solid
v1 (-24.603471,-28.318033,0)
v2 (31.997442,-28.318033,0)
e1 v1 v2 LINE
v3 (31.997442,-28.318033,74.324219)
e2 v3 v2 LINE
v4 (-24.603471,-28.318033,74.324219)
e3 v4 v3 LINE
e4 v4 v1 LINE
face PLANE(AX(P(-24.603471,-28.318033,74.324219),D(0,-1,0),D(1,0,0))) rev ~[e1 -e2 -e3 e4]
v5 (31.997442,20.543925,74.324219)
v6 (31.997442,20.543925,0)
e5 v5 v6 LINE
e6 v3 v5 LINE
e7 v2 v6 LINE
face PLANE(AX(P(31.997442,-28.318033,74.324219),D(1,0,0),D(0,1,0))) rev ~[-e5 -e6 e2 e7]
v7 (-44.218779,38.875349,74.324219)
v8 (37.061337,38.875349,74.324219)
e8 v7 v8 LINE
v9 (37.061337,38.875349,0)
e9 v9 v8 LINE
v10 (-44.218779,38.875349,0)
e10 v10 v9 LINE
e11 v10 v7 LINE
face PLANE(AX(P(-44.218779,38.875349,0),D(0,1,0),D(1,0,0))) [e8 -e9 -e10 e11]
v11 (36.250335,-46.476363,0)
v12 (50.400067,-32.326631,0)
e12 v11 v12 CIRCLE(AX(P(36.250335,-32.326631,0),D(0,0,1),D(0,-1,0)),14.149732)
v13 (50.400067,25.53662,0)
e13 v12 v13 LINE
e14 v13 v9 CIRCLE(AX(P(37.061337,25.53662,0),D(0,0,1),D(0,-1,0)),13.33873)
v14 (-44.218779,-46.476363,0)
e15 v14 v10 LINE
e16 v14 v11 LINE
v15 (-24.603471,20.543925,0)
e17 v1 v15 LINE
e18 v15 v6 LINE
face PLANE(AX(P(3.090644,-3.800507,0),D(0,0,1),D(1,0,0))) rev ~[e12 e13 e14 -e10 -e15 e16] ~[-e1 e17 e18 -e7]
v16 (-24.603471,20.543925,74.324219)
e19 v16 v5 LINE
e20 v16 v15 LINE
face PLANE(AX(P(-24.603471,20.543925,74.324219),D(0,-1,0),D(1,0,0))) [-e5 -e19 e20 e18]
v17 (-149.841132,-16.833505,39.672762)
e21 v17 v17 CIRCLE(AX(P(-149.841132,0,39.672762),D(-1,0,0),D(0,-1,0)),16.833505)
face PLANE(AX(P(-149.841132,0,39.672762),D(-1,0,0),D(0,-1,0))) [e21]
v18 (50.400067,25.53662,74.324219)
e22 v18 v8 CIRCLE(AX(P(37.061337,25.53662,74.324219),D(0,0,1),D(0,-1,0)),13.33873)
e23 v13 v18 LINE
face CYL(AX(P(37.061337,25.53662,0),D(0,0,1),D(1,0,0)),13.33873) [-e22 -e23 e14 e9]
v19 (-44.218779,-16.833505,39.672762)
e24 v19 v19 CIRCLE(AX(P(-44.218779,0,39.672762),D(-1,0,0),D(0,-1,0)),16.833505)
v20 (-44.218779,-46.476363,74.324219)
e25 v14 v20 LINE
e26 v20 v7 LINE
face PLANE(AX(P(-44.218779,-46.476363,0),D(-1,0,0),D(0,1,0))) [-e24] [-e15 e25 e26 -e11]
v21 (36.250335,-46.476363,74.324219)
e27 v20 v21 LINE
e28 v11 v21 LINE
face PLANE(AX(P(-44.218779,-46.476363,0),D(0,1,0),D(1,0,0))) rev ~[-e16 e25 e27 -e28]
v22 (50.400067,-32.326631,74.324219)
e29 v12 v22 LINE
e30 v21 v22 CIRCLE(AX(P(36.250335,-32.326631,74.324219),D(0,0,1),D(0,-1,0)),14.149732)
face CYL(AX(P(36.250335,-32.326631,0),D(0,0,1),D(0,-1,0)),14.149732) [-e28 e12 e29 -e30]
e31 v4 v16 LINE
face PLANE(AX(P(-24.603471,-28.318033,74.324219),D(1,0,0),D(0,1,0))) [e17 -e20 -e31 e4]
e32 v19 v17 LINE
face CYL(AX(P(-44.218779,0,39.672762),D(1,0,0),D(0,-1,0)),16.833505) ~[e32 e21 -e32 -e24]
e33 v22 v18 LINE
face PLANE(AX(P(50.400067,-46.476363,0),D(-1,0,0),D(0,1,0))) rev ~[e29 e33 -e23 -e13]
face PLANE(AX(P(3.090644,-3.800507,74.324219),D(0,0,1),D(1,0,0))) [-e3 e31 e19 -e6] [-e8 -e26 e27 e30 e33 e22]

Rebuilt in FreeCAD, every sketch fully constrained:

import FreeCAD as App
import Part
import Sketcher


def edges_at(feature, points):
    """Names of the edges that pass closest to the given points."""
    edges = feature.Shape.Edges
    near = lambda p: min(range(len(edges)), key=lambda i: edges[i].distToShape(Part.Vertex(*p))[0])
    return sorted({f"Edge{near(p) + 1}" for p in points})


def add_polygon(sketch, points):
    """Adds a closed chain of lines whose ends are joined by coincident constraints."""
    first, n = sketch.GeometryCount, len(points)
    for a, b in zip(points, points[1:] + points[:1]):
        sketch.addGeometry(Part.LineSegment(App.Vector(*a, 0), App.Vector(*b, 0)), False)
    for i in range(n):
        sketch.addConstraint(Sketcher.Constraint("Coincident", first + i, 2, first + (i + 1) % n, 1))

doc = App.newDocument("Part")
params = doc.addObject("Spreadsheet::Sheet", "Params")
for row, (alias, value) in enumerate([
    ("pad1_length", "74.324219 mm"),
    ("pocket1_length", "132.836582 mm"),
    ("pad2_length", "105.622353 mm"),
    ("fillet_radius", "14.149732 mm"),
    ("fillet2_radius", "13.33873 mm"),
], start=1):
    params.set(f"A{row}", alias)
    params.set(f"B{row}", "=" + value)
    params.setAlias(f"B{row}", alias)

body = doc.addObject("PartDesign::Body", "Body")

# Sketch on XY plane
sketch1 = doc.addObject("Sketcher::SketchObject", "Sketch")
body.addObject(sketch1)
sketch1.AttachmentSupport = (doc.XY_Plane, [""])
sketch1.MapMode = "FlatFace"
add_polygon(sketch1, [(-44.218779, 38.875349), (-44.218779, -46.476363), (50.400067, -46.476363), (50.400067, 38.875349)])  # lines 0-3
sketch1.addConstraint([
    Sketcher.Constraint("Vertical", 0),
    Sketcher.Constraint("Horizontal", 1),
    Sketcher.Constraint("Vertical", 2),
    Sketcher.Constraint("Horizontal", 3),
    Sketcher.Constraint("DistanceX", 1, 1, 1, 2, 94.618846),
    Sketcher.Constraint("DistanceY", 0, 2, 0, 1, 85.351713),
    Sketcher.Constraint("DistanceX", 0, 2, -1, 1, 44.218779),
    Sketcher.Constraint("DistanceY", -1, 1, 2, 2, 38.875349),
])
pad1 = doc.addObject("PartDesign::Pad", "Pad")
body.addObject(pad1)
pad1.Profile = sketch1
pad1.setExpression("Length", "Params.pad1_length")

# Sketch on XY plane
sketch2 = doc.addObject("Sketcher::SketchObject", "Sketch001")
body.addObject(sketch2)
sketch2.AttachmentSupport = (doc.XY_Plane, [""])
sketch2.MapMode = "FlatFace"
sketch2.AttachmentOffset = App.Placement(App.Vector(0, 0, 74.324219), App.Rotation())
add_polygon(sketch2, [(-24.603471, 20.543925), (-24.603471, -28.318033), (31.997442, -28.318033), (31.997442, 20.543925)])  # lines 0-3
sketch2.addConstraint([
    Sketcher.Constraint("Vertical", 0),
    Sketcher.Constraint("Horizontal", 1),
    Sketcher.Constraint("Vertical", 2),
    Sketcher.Constraint("Horizontal", 3),
    Sketcher.Constraint("DistanceX", 1, 1, 1, 2, 56.600913),
    Sketcher.Constraint("DistanceY", 0, 2, 0, 1, 48.861958),
    Sketcher.Constraint("DistanceX", 0, 2, -1, 1, 24.603471),
    Sketcher.Constraint("DistanceY", 0, 2, -1, 1, 28.318033),
])
pocket1 = doc.addObject("PartDesign::Pocket", "Pocket")
body.addObject(pocket1)
pocket1.Profile = sketch2
pocket1.setExpression("Length", "Params.pocket1_length")

# Sketch on YZ plane
sketch3 = doc.addObject("Sketcher::SketchObject", "Sketch002")
body.addObject(sketch3)
sketch3.AttachmentSupport = (doc.YZ_Plane, [""])
sketch3.MapMode = "FlatFace"
sketch3.AttachmentOffset = App.Placement(App.Vector(0, 0, -44.218779), App.Rotation())
sketch3.addGeometry(Part.Circle(App.Vector(0, 39.672762, 0), App.Vector(0, 0, 1), 16.833505), False)
sketch3.addConstraint([
    Sketcher.Constraint("PointOnObject", 0, 3, -2),
    Sketcher.Constraint("Diameter", 0, 33.66701),
    Sketcher.Constraint("DistanceY", -1, 1, 0, 3, 39.672762),
])
pad2 = doc.addObject("PartDesign::Pad", "Pad001")
body.addObject(pad2)
pad2.Profile = sketch3
pad2.setExpression("Length", "Params.pad2_length")
pad2.Reversed = True
doc.recompute()

fillet = doc.addObject("PartDesign::Fillet", "Fillet")
body.addObject(fillet)
fillet.Base = (pad2, edges_at(pad2, [(50.4, -46.476, 37.162)]))
fillet.setExpression("Radius", "Params.fillet_radius")
doc.recompute()

fillet2 = doc.addObject("PartDesign::Fillet", "Fillet001")
body.addObject(fillet2)
fillet2.Base = (fillet, edges_at(fillet, [(50.4, 38.875, 37.162)]))
fillet2.setExpression("Radius", "Params.fillet2_radius")

doc.recompute()
